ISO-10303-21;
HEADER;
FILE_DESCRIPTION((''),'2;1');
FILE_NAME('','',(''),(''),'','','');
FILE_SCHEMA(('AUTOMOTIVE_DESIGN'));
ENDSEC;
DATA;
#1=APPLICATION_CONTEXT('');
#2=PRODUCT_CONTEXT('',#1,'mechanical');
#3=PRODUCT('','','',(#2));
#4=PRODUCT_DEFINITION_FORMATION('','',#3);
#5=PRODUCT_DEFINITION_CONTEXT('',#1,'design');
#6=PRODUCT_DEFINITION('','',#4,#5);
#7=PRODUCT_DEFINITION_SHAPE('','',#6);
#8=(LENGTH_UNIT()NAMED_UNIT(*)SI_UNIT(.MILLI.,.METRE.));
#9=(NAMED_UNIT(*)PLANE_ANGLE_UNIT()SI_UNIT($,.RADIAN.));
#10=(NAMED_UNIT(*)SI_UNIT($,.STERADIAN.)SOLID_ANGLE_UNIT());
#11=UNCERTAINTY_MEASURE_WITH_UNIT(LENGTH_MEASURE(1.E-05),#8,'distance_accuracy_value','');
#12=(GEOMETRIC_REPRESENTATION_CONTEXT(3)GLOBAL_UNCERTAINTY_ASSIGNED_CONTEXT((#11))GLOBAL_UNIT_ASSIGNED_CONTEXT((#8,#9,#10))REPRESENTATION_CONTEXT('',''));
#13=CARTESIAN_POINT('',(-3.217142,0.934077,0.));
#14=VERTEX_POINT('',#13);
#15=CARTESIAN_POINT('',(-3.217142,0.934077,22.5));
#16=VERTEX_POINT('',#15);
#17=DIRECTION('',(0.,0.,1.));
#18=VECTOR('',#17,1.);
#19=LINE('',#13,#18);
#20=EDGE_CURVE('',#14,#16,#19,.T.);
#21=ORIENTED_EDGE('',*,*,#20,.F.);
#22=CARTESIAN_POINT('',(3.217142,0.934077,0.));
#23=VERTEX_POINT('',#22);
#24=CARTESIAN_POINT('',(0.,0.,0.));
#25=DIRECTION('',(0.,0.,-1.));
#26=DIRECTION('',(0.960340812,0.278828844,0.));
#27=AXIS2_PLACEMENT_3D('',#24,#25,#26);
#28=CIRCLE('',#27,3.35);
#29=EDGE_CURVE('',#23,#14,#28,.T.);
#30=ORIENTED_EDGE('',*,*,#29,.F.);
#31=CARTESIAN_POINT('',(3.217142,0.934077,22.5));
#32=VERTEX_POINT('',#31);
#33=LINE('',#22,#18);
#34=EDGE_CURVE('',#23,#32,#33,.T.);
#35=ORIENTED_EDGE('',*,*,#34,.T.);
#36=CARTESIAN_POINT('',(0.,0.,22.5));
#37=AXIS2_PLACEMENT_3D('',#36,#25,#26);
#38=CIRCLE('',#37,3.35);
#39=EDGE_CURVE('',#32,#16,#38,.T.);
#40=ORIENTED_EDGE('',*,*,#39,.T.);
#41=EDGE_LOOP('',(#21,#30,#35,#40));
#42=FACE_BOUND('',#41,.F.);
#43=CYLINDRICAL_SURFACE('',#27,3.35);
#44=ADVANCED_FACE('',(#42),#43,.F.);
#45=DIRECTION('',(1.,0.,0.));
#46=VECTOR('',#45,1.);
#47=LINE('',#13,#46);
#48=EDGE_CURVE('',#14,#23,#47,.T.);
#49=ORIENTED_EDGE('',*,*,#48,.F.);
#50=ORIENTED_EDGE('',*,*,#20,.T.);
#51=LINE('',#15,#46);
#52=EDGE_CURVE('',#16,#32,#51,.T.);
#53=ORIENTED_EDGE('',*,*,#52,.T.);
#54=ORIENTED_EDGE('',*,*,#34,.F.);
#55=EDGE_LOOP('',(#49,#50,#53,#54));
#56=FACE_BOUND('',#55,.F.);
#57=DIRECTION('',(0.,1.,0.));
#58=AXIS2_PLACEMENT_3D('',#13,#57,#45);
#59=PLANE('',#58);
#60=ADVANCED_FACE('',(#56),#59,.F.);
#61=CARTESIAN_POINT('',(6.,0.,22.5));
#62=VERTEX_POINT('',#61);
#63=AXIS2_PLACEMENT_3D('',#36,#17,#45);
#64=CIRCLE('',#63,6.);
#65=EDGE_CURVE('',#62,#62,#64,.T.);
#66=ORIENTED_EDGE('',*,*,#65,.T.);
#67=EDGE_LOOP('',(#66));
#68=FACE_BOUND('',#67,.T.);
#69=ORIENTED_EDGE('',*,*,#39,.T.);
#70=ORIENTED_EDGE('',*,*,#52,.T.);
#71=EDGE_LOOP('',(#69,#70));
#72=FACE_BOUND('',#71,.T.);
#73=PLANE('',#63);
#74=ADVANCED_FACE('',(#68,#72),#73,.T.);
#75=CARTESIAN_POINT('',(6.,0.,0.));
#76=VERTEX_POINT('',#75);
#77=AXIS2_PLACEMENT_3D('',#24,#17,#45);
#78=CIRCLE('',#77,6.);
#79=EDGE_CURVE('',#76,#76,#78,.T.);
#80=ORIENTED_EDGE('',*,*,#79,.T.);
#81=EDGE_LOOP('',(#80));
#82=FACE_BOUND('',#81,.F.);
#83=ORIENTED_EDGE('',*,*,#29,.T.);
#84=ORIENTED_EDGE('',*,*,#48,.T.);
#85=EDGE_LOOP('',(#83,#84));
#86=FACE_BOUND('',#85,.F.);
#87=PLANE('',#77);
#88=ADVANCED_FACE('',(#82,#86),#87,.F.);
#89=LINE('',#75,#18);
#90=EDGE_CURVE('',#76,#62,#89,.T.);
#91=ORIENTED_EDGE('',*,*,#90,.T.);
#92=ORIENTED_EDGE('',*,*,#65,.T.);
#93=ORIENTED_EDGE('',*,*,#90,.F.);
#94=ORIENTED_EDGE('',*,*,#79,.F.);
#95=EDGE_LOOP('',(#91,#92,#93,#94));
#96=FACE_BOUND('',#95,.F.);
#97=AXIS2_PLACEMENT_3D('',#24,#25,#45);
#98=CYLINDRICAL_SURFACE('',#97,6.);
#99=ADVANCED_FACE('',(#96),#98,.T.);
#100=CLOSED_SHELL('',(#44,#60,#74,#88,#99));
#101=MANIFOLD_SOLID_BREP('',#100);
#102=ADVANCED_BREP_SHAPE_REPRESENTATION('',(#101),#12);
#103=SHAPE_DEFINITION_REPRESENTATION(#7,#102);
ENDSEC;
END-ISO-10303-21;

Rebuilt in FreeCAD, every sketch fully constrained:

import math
import FreeCAD as App
import Part
import Sketcher

doc = App.newDocument("Part")
body = doc.addObject("PartDesign::Body", "Body")

# Sketch on XY plane
sketch1 = doc.addObject("Sketcher::SketchObject", "Sketch")
body.addObject(sketch1)
sketch1.AttachmentSupport = (doc.XY_Plane, [""])
sketch1.MapMode = "FlatFace"
sketch1.addGeometry(Part.Circle(App.Vector(0, 0, 0), App.Vector(0, 0, 1), 6), False)
sketch1.addGeometry(Part.ArcOfCircle(Part.Circle(App.Vector(0, 0, 0), App.Vector(0, 0, 1), 3.35), math.radians(163.809681), math.radians(376.190319)), False)
sketch1.addGeometry(Part.LineSegment(App.Vector(-3.217142, 0.934077, 0), App.Vector(3.217142, 0.934077, 0)), False)
sketch1.addConstraint(Sketcher.Constraint("Coincident", 1, 1, 2, 1))
sketch1.addConstraint(Sketcher.Constraint("Coincident", 2, 2, 1, 2))
sketch1.addConstraint(Sketcher.Constraint("Horizontal", 2))
sketch1.addConstraint(Sketcher.Constraint("Coincident", 0, 3, -1, 1))
sketch1.addConstraint(Sketcher.Constraint("Coincident", 1, 3, -1, 1))
sketch1.addConstraint(Sketcher.Constraint("Diameter", 0, 12.0))
sketch1.addConstraint(Sketcher.Constraint("Radius", 1, 3.35))
sketch1.addConstraint(Sketcher.Constraint("DistanceX", 2, 1, 2, 2, 6.434284))
pad1 = doc.addObject("PartDesign::Pad", "Pad")
body.addObject(pad1)
pad1.Profile = sketch1
pad1.Length = 22.5

doc.recompute()
